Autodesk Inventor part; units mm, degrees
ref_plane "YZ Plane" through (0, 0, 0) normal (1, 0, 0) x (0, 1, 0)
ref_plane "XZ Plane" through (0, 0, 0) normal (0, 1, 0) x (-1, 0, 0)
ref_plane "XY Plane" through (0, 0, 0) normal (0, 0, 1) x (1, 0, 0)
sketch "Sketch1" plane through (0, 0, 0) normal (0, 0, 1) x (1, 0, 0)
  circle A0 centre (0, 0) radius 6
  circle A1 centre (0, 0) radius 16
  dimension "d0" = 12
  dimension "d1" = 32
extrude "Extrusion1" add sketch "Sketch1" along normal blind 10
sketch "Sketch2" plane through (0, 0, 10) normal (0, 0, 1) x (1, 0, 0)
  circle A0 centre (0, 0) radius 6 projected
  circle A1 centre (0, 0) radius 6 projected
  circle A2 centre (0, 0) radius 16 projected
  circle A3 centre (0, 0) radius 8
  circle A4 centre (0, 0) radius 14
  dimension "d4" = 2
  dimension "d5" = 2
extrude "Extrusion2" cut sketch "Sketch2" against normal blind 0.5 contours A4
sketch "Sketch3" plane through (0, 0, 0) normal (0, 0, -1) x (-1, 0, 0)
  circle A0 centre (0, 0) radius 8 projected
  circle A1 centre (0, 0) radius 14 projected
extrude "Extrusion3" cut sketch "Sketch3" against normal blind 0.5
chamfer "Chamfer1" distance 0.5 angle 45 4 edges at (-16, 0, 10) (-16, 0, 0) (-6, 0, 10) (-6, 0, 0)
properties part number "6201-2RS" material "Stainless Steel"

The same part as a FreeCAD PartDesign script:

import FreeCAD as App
import Part
import Sketcher
from FreeCAD import Vector
Q = App.Units.Quantity


def edges_at(feature, points):
    """Names of the edges that pass closest to the given points."""
    edges = feature.Shape.Edges
    near = lambda p: min(range(len(edges)), key=lambda i: edges[i].distToShape(Part.Vertex(*p))[0])
    return sorted({f"Edge{near(p) + 1}" for p in points})

doc = App.newDocument("Part")
body = doc.addObject("PartDesign::Body", "Body")

# Sketch on XY plane
sketch1 = body.newObject("Sketcher::SketchObject", "Sketch")
sketch1.AttachmentSupport = (doc.getObject("XY_Plane"), [""])
sketch1.MapMode = "FlatFace"
sketch1.addGeometry([
    Part.Circle(Vector(0, 0, 0), Vector(0, 0, 1), 16),
    Part.Circle(Vector(0, 0, 0), Vector(0, 0, 1), 6),
], False)
sketch1.addConstraint([
    Sketcher.Constraint("Coincident", 0, 3, -1, 1),
    Sketcher.Constraint("Coincident", 1, 3, -1, 1),
    Sketcher.Constraint("Diameter", 0, Q("32 mm")),
    Sketcher.Constraint("Diameter", 1, Q("12 mm")),
])
pad1 = body.newObject("PartDesign::Pad", "Pad")
pad1.Profile = sketch1
pad1.Length = 10

# Sketch on XY plane
sketch2 = body.newObject("Sketcher::SketchObject", "Sketch001")
sketch2.AttachmentSupport = (doc.getObject("XY_Plane"), [""])
sketch2.MapMode = "FlatFace"
sketch2.AttachmentOffset = App.Placement(Vector(0, 0, 10), App.Rotation())
sketch2.addGeometry([
    Part.Circle(Vector(0, 0, 0), Vector(0, 0, 1), 14),
    Part.Circle(Vector(0, 0, 0), Vector(0, 0, 1), 8),
], False)
sketch2.addConstraint([
    Sketcher.Constraint("Coincident", 0, 3, -1, 1),
    Sketcher.Constraint("Coincident", 1, 3, -1, 1),
    Sketcher.Constraint("Diameter", 0, Q("28 mm")),
    Sketcher.Constraint("Diameter", 1, Q("16 mm")),
])
pocket1 = body.newObject("PartDesign::Pocket", "Pocket")
pocket1.Profile = sketch2
pocket1.Length = 0.5

# Sketch on XY plane
sketch3 = body.newObject("Sketcher::SketchObject", "Sketch002")
sketch3.AttachmentSupport = (doc.getObject("XY_Plane"), [""])
sketch3.MapMode = "FlatFace"
sketch3.addGeometry([
    Part.Circle(Vector(0, 0, 0), Vector(0, 0, 1), 14),
    Part.Circle(Vector(0, 0, 0), Vector(0, 0, 1), 8),
], False)
sketch3.addConstraint([
    Sketcher.Constraint("Coincident", 0, 3, -1, 1),
    Sketcher.Constraint("Coincident", 1, 3, -1, 1),
    Sketcher.Constraint("Diameter", 0, Q("28 mm")),
    Sketcher.Constraint("Diameter", 1, Q("16 mm")),
])
pocket2 = body.newObject("PartDesign::Pocket", "Pocket001")
pocket2.Profile = sketch3
pocket2.Length = 0.5
pocket2.Reversed = True
doc.recompute()

chamfer = body.newObject("PartDesign::Chamfer", "Chamfer")
chamfer.Base = (pocket2, edges_at(pocket2, [
    (-16, 0, 10),
    (-16, 0, 0),
    (-6, 0, 10),
    (-6, 0, 0),
]))
chamfer.Size = 0.5

doc.recompute()
